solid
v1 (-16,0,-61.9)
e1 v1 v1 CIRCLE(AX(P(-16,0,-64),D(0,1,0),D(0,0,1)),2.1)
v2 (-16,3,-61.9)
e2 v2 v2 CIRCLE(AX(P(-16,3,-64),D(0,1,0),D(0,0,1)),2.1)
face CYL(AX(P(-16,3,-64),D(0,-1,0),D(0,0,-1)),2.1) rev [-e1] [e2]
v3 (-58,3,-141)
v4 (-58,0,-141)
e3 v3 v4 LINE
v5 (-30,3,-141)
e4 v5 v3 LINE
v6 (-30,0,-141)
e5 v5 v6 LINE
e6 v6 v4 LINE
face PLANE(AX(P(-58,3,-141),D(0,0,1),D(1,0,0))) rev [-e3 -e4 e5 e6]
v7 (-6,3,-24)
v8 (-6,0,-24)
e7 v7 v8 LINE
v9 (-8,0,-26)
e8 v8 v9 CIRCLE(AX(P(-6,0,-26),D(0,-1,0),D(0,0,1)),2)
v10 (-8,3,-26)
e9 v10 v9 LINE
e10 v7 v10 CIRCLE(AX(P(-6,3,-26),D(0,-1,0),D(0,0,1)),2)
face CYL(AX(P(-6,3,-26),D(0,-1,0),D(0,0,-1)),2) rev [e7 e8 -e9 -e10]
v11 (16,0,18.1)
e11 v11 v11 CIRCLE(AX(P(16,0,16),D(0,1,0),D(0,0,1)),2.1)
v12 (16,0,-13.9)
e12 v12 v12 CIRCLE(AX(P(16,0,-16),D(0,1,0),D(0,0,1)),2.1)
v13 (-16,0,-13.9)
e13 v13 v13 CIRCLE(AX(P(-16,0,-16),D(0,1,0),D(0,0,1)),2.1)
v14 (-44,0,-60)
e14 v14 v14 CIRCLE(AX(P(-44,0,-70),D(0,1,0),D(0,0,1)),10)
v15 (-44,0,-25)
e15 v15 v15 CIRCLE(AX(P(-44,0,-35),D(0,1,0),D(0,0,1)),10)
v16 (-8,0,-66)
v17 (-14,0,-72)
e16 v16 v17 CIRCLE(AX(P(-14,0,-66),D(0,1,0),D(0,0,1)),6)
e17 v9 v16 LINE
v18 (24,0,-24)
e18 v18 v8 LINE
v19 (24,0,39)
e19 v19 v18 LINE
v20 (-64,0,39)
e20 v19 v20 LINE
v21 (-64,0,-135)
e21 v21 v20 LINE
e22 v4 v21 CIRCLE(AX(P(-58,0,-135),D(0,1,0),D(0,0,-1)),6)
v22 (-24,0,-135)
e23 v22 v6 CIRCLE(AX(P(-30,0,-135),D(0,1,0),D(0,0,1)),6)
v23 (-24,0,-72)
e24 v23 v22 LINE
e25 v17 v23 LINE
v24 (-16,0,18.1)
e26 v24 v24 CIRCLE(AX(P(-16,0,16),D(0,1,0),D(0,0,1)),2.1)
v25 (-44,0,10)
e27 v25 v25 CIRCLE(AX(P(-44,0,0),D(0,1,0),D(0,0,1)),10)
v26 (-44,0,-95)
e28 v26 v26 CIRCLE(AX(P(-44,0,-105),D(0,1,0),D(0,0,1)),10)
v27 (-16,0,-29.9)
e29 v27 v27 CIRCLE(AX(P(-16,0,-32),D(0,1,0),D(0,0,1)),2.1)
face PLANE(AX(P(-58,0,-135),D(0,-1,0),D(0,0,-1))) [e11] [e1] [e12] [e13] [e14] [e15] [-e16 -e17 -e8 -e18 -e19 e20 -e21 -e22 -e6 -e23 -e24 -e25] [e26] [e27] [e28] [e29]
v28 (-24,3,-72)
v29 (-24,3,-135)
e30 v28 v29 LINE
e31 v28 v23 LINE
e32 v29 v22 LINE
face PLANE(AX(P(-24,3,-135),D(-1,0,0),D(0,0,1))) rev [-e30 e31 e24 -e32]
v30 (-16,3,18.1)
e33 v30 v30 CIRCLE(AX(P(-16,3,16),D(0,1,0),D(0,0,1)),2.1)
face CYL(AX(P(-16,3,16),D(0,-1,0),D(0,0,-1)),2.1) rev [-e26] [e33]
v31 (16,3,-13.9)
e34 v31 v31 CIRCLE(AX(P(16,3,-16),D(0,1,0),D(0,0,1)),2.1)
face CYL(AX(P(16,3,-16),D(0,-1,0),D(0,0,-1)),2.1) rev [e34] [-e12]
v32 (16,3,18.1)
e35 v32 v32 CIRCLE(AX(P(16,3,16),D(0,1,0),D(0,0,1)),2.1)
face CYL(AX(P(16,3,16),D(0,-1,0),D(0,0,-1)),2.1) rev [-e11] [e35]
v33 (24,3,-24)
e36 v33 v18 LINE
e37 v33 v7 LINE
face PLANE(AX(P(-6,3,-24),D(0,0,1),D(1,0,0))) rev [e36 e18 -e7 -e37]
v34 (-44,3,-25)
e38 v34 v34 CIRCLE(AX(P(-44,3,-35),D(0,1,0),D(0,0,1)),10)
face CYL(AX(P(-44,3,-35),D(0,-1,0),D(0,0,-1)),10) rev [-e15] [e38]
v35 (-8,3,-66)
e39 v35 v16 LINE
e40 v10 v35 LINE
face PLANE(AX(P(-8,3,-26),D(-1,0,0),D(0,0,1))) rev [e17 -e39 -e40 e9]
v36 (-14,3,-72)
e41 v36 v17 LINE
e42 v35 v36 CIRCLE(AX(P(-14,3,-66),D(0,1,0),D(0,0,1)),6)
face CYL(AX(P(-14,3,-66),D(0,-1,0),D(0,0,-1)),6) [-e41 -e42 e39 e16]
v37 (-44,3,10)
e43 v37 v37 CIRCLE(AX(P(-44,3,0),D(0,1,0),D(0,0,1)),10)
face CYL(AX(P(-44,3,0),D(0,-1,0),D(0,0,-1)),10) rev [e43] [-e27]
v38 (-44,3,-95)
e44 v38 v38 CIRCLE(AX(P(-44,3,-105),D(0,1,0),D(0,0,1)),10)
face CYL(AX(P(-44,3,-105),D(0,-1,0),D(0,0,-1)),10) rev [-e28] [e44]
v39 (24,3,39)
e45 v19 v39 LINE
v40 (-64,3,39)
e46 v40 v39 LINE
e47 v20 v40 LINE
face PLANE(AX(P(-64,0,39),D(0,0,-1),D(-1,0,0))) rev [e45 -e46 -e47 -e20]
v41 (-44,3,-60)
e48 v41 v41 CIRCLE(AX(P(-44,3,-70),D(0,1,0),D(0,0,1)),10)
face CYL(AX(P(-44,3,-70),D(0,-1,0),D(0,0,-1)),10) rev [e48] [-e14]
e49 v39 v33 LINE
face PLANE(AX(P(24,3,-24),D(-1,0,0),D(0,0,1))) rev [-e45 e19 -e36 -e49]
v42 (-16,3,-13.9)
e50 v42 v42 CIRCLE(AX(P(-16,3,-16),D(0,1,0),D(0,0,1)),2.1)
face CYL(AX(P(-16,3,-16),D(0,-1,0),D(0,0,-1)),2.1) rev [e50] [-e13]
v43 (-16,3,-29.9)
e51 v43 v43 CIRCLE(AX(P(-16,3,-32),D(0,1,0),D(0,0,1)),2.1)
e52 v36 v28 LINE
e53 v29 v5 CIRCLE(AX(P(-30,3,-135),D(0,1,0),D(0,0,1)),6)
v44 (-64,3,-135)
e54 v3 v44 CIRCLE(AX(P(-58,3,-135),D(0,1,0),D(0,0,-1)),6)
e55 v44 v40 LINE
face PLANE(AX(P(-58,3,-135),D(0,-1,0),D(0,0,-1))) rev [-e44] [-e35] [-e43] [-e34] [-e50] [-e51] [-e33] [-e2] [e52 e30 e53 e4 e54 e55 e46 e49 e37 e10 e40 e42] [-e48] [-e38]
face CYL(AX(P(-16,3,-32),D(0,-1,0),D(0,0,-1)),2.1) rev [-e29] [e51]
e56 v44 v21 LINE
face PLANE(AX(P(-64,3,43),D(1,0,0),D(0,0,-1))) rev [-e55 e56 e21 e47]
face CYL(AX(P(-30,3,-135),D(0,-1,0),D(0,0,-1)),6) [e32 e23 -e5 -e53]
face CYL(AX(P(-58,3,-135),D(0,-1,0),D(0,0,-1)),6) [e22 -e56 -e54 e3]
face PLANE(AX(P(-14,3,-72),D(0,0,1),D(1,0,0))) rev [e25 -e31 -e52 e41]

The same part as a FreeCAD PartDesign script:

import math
import FreeCAD as App
import Part
import Sketcher

doc = App.newDocument("Part")
params = doc.addObject("Spreadsheet::Sheet", "Params")
for row, (alias, value) in enumerate([
    ("sketch1_diameter", "20 mm"),
    ("sketch1_radius", "6 mm"),
    ("sketch1_radius2", "2 mm"),
    ("sketch1_diameter2", "4.2 mm"),
    ("sketch1_width", "10 mm"),
    ("pad1_length", "3 mm"),
    ("sketch2_width", "88 mm"),
    ("sketch2_height", "4 mm"),
], start=1):
    params.set(f"A{row}", alias)
    params.set(f"B{row}", "=" + value)
    params.setAlias(f"B{row}", alias)

body = doc.addObject("PartDesign::Body", "Body")

# Sketch on XZ plane
sketch1 = doc.addObject("Sketcher::SketchObject", "Sketch")
body.addObject(sketch1)
sketch1.AttachmentSupport = (doc.XZ_Plane, [""])
sketch1.MapMode = "FlatFace"
sketch1.addGeometry([
    Part.LineSegment(App.Vector(-8, -26, 0), App.Vector(-8, -66, 0)),  # 0
    Part.ArcOfCircle(Part.Circle(App.Vector(-14, -66, 0), App.Vector(0, 0, 1), 6), math.radians(-90), math.radians(0)),  # 1
    Part.LineSegment(App.Vector(-14, -72, 0), App.Vector(-24, -72, 0)),  # 2
    Part.LineSegment(App.Vector(-24, -72, 0), App.Vector(-24, -135, 0)),  # 3
    Part.ArcOfCircle(Part.Circle(App.Vector(-30, -135, 0), App.Vector(0, 0, 1), 6), math.radians(-90), math.radians(0)),  # 4
    Part.LineSegment(App.Vector(-30, -141, 0), App.Vector(-58, -141, 0)),  # 5
    Part.ArcOfCircle(Part.Circle(App.Vector(-58, -135, 0), App.Vector(0, 0, 1), 6), math.radians(180), math.radians(270)),  # 6
    Part.LineSegment(App.Vector(-64, -135, 0), App.Vector(-64, 43, 0)),  # 7
    Part.LineSegment(App.Vector(-64, 43, 0), App.Vector(24, 43, 0)),  # 8
    Part.LineSegment(App.Vector(24, 43, 0), App.Vector(24, -24, 0)),  # 9
    Part.LineSegment(App.Vector(24, -24, 0), App.Vector(-6, -24, 0)),  # 10
    Part.ArcOfCircle(Part.Circle(App.Vector(-6, -26, 0), App.Vector(0, 0, 1), 2), math.radians(90), math.radians(180)),  # 11
    Part.Circle(App.Vector(-44, 0, 0), App.Vector(0, 0, 1), 10),  # 12
    Part.Circle(App.Vector(-44, -35, 0), App.Vector(0, 0, 1), 10),  # 13
    Part.Circle(App.Vector(-16, 16, 0), App.Vector(0, 0, 1), 2.1),  # 14
    Part.Circle(App.Vector(16, 16, 0), App.Vector(0, 0, 1), 2.1),  # 15
    Part.Circle(App.Vector(-16, -16, 0), App.Vector(0, 0, 1), 2.1),  # 16
    Part.Circle(App.Vector(-16, -32, 0), App.Vector(0, 0, 1), 2.1),  # 17
    Part.Circle(App.Vector(16, -16, 0), App.Vector(0, 0, 1), 2.1),  # 18
    Part.Circle(App.Vector(-44, -70, 0), App.Vector(0, 0, 1), 10),  # 19
    Part.Circle(App.Vector(-44, -105, 0), App.Vector(0, 0, 1), 10),  # 20
    Part.Circle(App.Vector(-16, -64, 0), App.Vector(0, 0, 1), 2.1),  # 21
], False)
sketch1.addConstraint([
    Sketcher.Constraint("Tangent", 0, 2, 1, 2),
    Sketcher.Constraint("Tangent", 1, 1, 2, 1),
    Sketcher.Constraint("Coincident", 2, 2, 3, 1),
    Sketcher.Constraint("Tangent", 3, 2, 4, 2),
    Sketcher.Constraint("Tangent", 4, 1, 5, 1),
    Sketcher.Constraint("Tangent", 5, 2, 6, 2),
    Sketcher.Constraint("Tangent", 6, 1, 7, 1),
    Sketcher.Constraint("Coincident", 7, 2, 8, 1),
    Sketcher.Constraint("Coincident", 8, 2, 9, 1),
    Sketcher.Constraint("Coincident", 9, 2, 10, 1),
    Sketcher.Constraint("Tangent", 10, 2, 11, 1),
    Sketcher.Constraint("Tangent", 11, 2, 0, 1),
    Sketcher.Constraint("Vertical", 0),
    Sketcher.Constraint("Horizontal", 2),
    Sketcher.Constraint("Vertical", 3),
    Sketcher.Constraint("Horizontal", 5),
    Sketcher.Constraint("Vertical", 7),
    Sketcher.Constraint("Horizontal", 8),
    Sketcher.Constraint("Vertical", 9),
    Sketcher.Constraint("Horizontal", 10),
    Sketcher.Constraint("Equal", 1, 4),
    Sketcher.Constraint("Equal", 4, 6),
    Sketcher.Constraint("Equal", 12, 13),
    Sketcher.Constraint("Equal", 14, 15),
    Sketcher.Constraint("Equal", 15, 16),
    Sketcher.Constraint("Equal", 16, 17),
    Sketcher.Constraint("Equal", 17, 18),
    Sketcher.Constraint("Equal", 13, 19),
    Sketcher.Constraint("Equal", 19, 20),
    Sketcher.Constraint("Equal", 18, 21),
    Sketcher.Constraint("Symmetric", 15, 3, 16, 3, -1, 1),
    Sketcher.Constraint("Symmetric", 14, 3, 18, 3, -1, 1),
    Sketcher.Constraint("Symmetric", 14, 3, 15, 3, -2),
    Sketcher.Constraint("PointOnObject", 12, 3, -1),
    Sketcher.Constraint("Vertical", 12, 3, 13, 3),
    Sketcher.Constraint("Vertical", 16, 3, 17, 3),
    Sketcher.Constraint("Vertical", 13, 3, 19, 3),
    Sketcher.Constraint("Vertical", 19, 3, 20, 3),
    Sketcher.Constraint("Vertical", 17, 3, 21, 3),
    Sketcher.Constraint("Diameter", 12, 20.0),
    Sketcher.Constraint("Radius", 1, 6.0),
    Sketcher.Constraint("Radius", 11, 2.0),
    Sketcher.Constraint("Diameter", 14, 4.2),
    Sketcher.Constraint("DistanceX", 2, 2, 2, 1, 10.0),
    Sketcher.Constraint("DistanceX", 5, 2, 5, 1, 28.0),
    Sketcher.Constraint("DistanceX", 8, 1, 8, 2, 88.0),
    Sketcher.Constraint("DistanceY", 0, 2, 0, 1, 40.0),
    Sketcher.Constraint("DistanceY", 3, 2, 3, 1, 63.0),
    Sketcher.Constraint("DistanceY", 7, 1, 7, 2, 178.0),
    Sketcher.Constraint("DistanceX", 1, 3, -1, 1, 14.0),
    Sketcher.Constraint("DistanceY", 1, 3, -1, 1, 66.0),
    Sketcher.Constraint("DistanceX", 12, 3, -1, 1, 44.0),
    Sketcher.Constraint("DistanceY", 13, 3, -1, 1, 35.0),
    Sketcher.Constraint("DistanceX", 14, 3, -1, 1, 16.0),
    Sketcher.Constraint("DistanceY", -1, 1, 14, 3, 16.0),
    Sketcher.Constraint("DistanceY", 17, 3, -1, 1, 32.0),
    Sketcher.Constraint("DistanceY", 19, 3, -1, 1, 70.0),
    Sketcher.Constraint("DistanceY", 20, 3, -1, 1, 105.0),
    Sketcher.Constraint("DistanceY", 21, 3, -1, 1, 64.0),
])
sketch1.setExpression("Constraints[39]", "Params.sketch1_diameter")
sketch1.setExpression("Constraints[40]", "Params.sketch1_radius")
sketch1.setExpression("Constraints[41]", "Params.sketch1_radius2")
sketch1.setExpression("Constraints[42]", "Params.sketch1_diameter2")
sketch1.setExpression("Constraints[43]", "Params.sketch1_width")
pad1 = doc.addObject("PartDesign::Pad", "Pad")
body.addObject(pad1)
pad1.Profile = sketch1
pad1.setExpression("Length", "Params.pad1_length")
pad1.Reversed = True

# Sketch on XZ plane
sketch2 = doc.addObject("Sketcher::SketchObject", "Sketch001")
body.addObject(sketch2)
sketch2.AttachmentSupport = (doc.XZ_Plane, [""])
sketch2.MapMode = "FlatFace"
sketch2.AttachmentOffset = App.Placement(App.Vector(0, 0, -3), App.Rotation())
sketch2.addGeometry([
    Part.LineSegment(App.Vector(-64, 39, 0), App.Vector(-64, 43, 0)),
    Part.LineSegment(App.Vector(-64, 43, 0), App.Vector(24, 43, 0)),
    Part.LineSegment(App.Vector(24, 43, 0), App.Vector(24, 39, 0)),
    Part.LineSegment(App.Vector(24, 39, 0), App.Vector(-64, 39, 0)),
], False)
sketch2.addConstraint([
    Sketcher.Constraint("Coincident", 0, 2, 1, 1),
    Sketcher.Constraint("Coincident", 1, 2, 2, 1),
    Sketcher.Constraint("Coincident", 2, 2, 3, 1),
    Sketcher.Constraint("Coincident", 3, 2, 0, 1),
    Sketcher.Constraint("Vertical", 0),
    Sketcher.Constraint("Horizontal", 1),
    Sketcher.Constraint("Vertical", 2),
    Sketcher.Constraint("Horizontal", 3),
    Sketcher.Constraint("DistanceX", 1, 1, 1, 2, 88.0),
    Sketcher.Constraint("DistanceY", 0, 1, 0, 2, 4.0),
    Sketcher.Constraint("DistanceX", 0, 2, -1, 1, 64.0),
    Sketcher.Constraint("DistanceY", -1, 1, 0, 2, 43.0),
])
sketch2.setExpression("Constraints[8]", "Params.sketch2_width")
sketch2.setExpression("Constraints[9]", "Params.sketch2_height")
pocket1 = doc.addObject("PartDesign::Pocket", "Pocket")
body.addObject(pocket1)
pocket1.Profile = sketch2
pocket1.Type = "ThroughAll"
pocket1.Midplane = True

doc.recompute()
